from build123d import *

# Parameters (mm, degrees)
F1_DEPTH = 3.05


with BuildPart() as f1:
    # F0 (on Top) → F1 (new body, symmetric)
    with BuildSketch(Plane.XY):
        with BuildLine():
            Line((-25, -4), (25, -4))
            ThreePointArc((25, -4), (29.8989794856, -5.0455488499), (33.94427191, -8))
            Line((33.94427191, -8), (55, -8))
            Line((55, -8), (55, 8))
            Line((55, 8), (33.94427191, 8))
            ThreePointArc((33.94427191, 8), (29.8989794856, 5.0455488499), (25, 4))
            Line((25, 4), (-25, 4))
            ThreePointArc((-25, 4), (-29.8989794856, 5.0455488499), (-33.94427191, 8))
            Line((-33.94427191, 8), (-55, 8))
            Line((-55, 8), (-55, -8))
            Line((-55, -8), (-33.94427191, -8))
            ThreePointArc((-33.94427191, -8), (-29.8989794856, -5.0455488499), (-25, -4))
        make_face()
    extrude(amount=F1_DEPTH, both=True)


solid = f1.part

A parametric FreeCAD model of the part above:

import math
import FreeCAD as App
import Part
import Sketcher

V = App.Vector
Q = App.Units.Quantity

doc = App.newDocument("Part")
body = doc.addObject("PartDesign::Body", "Body")

sketch1 = body.newObject("Sketcher::SketchObject", "Sketch")
sketch1.AttachmentSupport = (doc.getObject("XY_Plane"), [""])
sketch1.MapMode = "FlatFace"
sketch1.addGeometry(Part.LineSegment(V(-25, -4, 0), V(25, -4, 0)), False)
sketch1.addGeometry(Part.ArcOfCircle(Part.Circle(V(25, -16, 0), V(0, 0, 1), 12), math.radians(42), math.radians(90)), False)
sketch1.addGeometry(Part.LineSegment(V(34, -8, 0), V(55, -8, 0)), False)
sketch1.addGeometry(Part.LineSegment(V(55, -8, 0), V(55, 8, 0)), False)
sketch1.addGeometry(Part.LineSegment(V(55, 8, 0), V(34, 8, 0)), False)
sketch1.addGeometry(Part.ArcOfCircle(Part.Circle(V(25, 16, 0), V(0, 0, 1), 12), math.radians(-90), math.radians(-42)), False)
sketch1.addGeometry(Part.LineSegment(V(25, 4, 0), V(-25, 4, 0)), False)
sketch1.addGeometry(Part.ArcOfCircle(Part.Circle(V(-25, 16, 0), V(0, 0, 1), 12), math.radians(-138), math.radians(-90)), False)
sketch1.addGeometry(Part.LineSegment(V(-34, 8, 0), V(-55, 8, 0)), False)
sketch1.addGeometry(Part.LineSegment(V(-55, 8, 0), V(-55, -8, 0)), False)
sketch1.addGeometry(Part.LineSegment(V(-55, -8, 0), V(-34, -8, 0)), False)
sketch1.addGeometry(Part.ArcOfCircle(Part.Circle(V(-25, -16, 0), V(0, 0, 1), 12), math.radians(90), math.radians(138)), False)
sketch1.addConstraint(Sketcher.Constraint("Tangent", 0, 2, 1, 2))
sketch1.addConstraint(Sketcher.Constraint("Coincident", 1, 1, 2, 1))
sketch1.addConstraint(Sketcher.Constraint("Coincident", 2, 2, 3, 1))
sketch1.addConstraint(Sketcher.Constraint("Coincident", 3, 2, 4, 1))
sketch1.addConstraint(Sketcher.Constraint("Coincident", 4, 2, 5, 2))
sketch1.addConstraint(Sketcher.Constraint("Tangent", 5, 1, 6, 1))
sketch1.addConstraint(Sketcher.Constraint("Tangent", 6, 2, 7, 2))
sketch1.addConstraint(Sketcher.Constraint("Coincident", 7, 1, 8, 1))
sketch1.addConstraint(Sketcher.Constraint("Coincident", 8, 2, 9, 1))
sketch1.addConstraint(Sketcher.Constraint("Coincident", 9, 2, 10, 1))
sketch1.addConstraint(Sketcher.Constraint("Coincident", 10, 2, 11, 2))
sketch1.addConstraint(Sketcher.Constraint("Tangent", 11, 1, 0, 1))
sketch1.addConstraint(Sketcher.Constraint("Horizontal", 0))
sketch1.addConstraint(Sketcher.Constraint("Horizontal", 2))
sketch1.addConstraint(Sketcher.Constraint("Vertical", 3))
sketch1.addConstraint(Sketcher.Constraint("Horizontal", 4))
sketch1.addConstraint(Sketcher.Constraint("Horizontal", 6))
sketch1.addConstraint(Sketcher.Constraint("Horizontal", 8))
sketch1.addConstraint(Sketcher.Constraint("Vertical", 9))
sketch1.addConstraint(Sketcher.Constraint("Horizontal", 10))
sketch1.addConstraint(Sketcher.Constraint("Equal", 1, 5))
sketch1.addConstraint(Sketcher.Constraint("Equal", 5, 7))
sketch1.addConstraint(Sketcher.Constraint("Equal", 7, 11))
sketch1.addConstraint(Sketcher.Constraint("Symmetric", 1, 3, 7, 3, -1, 1))
sketch1.addConstraint(Sketcher.Constraint("Symmetric", 2, 2, 8, 2, -1, 1))
sketch1.addConstraint(Sketcher.Constraint("Symmetric", 4, 2, 10, 2, -1, 1))
sketch1.addConstraint(Sketcher.Constraint("Symmetric", 4, 2, 7, 1, -2))
sketch1.addConstraint(Sketcher.Constraint("Radius", 1, Q("12 mm")))
sketch1.addConstraint(Sketcher.Constraint("DistanceX", 0, 1, 0, 2, Q("50 mm")))
sketch1.addConstraint(Sketcher.Constraint("DistanceY", 3, 1, 3, 2, Q("16 mm")))
sketch1.addConstraint(Sketcher.Constraint("DistanceY", 1, 3, -1, 1, Q("16 mm")))
sketch1.addConstraint(Sketcher.Constraint("DistanceX", -1, 1, 2, 2, Q("55 mm")))
pad1 = body.newObject("PartDesign::Pad", "Pad")
pad1.Profile = sketch1
pad1.Length = 6.1
pad1.Midplane = True

doc.recompute()
